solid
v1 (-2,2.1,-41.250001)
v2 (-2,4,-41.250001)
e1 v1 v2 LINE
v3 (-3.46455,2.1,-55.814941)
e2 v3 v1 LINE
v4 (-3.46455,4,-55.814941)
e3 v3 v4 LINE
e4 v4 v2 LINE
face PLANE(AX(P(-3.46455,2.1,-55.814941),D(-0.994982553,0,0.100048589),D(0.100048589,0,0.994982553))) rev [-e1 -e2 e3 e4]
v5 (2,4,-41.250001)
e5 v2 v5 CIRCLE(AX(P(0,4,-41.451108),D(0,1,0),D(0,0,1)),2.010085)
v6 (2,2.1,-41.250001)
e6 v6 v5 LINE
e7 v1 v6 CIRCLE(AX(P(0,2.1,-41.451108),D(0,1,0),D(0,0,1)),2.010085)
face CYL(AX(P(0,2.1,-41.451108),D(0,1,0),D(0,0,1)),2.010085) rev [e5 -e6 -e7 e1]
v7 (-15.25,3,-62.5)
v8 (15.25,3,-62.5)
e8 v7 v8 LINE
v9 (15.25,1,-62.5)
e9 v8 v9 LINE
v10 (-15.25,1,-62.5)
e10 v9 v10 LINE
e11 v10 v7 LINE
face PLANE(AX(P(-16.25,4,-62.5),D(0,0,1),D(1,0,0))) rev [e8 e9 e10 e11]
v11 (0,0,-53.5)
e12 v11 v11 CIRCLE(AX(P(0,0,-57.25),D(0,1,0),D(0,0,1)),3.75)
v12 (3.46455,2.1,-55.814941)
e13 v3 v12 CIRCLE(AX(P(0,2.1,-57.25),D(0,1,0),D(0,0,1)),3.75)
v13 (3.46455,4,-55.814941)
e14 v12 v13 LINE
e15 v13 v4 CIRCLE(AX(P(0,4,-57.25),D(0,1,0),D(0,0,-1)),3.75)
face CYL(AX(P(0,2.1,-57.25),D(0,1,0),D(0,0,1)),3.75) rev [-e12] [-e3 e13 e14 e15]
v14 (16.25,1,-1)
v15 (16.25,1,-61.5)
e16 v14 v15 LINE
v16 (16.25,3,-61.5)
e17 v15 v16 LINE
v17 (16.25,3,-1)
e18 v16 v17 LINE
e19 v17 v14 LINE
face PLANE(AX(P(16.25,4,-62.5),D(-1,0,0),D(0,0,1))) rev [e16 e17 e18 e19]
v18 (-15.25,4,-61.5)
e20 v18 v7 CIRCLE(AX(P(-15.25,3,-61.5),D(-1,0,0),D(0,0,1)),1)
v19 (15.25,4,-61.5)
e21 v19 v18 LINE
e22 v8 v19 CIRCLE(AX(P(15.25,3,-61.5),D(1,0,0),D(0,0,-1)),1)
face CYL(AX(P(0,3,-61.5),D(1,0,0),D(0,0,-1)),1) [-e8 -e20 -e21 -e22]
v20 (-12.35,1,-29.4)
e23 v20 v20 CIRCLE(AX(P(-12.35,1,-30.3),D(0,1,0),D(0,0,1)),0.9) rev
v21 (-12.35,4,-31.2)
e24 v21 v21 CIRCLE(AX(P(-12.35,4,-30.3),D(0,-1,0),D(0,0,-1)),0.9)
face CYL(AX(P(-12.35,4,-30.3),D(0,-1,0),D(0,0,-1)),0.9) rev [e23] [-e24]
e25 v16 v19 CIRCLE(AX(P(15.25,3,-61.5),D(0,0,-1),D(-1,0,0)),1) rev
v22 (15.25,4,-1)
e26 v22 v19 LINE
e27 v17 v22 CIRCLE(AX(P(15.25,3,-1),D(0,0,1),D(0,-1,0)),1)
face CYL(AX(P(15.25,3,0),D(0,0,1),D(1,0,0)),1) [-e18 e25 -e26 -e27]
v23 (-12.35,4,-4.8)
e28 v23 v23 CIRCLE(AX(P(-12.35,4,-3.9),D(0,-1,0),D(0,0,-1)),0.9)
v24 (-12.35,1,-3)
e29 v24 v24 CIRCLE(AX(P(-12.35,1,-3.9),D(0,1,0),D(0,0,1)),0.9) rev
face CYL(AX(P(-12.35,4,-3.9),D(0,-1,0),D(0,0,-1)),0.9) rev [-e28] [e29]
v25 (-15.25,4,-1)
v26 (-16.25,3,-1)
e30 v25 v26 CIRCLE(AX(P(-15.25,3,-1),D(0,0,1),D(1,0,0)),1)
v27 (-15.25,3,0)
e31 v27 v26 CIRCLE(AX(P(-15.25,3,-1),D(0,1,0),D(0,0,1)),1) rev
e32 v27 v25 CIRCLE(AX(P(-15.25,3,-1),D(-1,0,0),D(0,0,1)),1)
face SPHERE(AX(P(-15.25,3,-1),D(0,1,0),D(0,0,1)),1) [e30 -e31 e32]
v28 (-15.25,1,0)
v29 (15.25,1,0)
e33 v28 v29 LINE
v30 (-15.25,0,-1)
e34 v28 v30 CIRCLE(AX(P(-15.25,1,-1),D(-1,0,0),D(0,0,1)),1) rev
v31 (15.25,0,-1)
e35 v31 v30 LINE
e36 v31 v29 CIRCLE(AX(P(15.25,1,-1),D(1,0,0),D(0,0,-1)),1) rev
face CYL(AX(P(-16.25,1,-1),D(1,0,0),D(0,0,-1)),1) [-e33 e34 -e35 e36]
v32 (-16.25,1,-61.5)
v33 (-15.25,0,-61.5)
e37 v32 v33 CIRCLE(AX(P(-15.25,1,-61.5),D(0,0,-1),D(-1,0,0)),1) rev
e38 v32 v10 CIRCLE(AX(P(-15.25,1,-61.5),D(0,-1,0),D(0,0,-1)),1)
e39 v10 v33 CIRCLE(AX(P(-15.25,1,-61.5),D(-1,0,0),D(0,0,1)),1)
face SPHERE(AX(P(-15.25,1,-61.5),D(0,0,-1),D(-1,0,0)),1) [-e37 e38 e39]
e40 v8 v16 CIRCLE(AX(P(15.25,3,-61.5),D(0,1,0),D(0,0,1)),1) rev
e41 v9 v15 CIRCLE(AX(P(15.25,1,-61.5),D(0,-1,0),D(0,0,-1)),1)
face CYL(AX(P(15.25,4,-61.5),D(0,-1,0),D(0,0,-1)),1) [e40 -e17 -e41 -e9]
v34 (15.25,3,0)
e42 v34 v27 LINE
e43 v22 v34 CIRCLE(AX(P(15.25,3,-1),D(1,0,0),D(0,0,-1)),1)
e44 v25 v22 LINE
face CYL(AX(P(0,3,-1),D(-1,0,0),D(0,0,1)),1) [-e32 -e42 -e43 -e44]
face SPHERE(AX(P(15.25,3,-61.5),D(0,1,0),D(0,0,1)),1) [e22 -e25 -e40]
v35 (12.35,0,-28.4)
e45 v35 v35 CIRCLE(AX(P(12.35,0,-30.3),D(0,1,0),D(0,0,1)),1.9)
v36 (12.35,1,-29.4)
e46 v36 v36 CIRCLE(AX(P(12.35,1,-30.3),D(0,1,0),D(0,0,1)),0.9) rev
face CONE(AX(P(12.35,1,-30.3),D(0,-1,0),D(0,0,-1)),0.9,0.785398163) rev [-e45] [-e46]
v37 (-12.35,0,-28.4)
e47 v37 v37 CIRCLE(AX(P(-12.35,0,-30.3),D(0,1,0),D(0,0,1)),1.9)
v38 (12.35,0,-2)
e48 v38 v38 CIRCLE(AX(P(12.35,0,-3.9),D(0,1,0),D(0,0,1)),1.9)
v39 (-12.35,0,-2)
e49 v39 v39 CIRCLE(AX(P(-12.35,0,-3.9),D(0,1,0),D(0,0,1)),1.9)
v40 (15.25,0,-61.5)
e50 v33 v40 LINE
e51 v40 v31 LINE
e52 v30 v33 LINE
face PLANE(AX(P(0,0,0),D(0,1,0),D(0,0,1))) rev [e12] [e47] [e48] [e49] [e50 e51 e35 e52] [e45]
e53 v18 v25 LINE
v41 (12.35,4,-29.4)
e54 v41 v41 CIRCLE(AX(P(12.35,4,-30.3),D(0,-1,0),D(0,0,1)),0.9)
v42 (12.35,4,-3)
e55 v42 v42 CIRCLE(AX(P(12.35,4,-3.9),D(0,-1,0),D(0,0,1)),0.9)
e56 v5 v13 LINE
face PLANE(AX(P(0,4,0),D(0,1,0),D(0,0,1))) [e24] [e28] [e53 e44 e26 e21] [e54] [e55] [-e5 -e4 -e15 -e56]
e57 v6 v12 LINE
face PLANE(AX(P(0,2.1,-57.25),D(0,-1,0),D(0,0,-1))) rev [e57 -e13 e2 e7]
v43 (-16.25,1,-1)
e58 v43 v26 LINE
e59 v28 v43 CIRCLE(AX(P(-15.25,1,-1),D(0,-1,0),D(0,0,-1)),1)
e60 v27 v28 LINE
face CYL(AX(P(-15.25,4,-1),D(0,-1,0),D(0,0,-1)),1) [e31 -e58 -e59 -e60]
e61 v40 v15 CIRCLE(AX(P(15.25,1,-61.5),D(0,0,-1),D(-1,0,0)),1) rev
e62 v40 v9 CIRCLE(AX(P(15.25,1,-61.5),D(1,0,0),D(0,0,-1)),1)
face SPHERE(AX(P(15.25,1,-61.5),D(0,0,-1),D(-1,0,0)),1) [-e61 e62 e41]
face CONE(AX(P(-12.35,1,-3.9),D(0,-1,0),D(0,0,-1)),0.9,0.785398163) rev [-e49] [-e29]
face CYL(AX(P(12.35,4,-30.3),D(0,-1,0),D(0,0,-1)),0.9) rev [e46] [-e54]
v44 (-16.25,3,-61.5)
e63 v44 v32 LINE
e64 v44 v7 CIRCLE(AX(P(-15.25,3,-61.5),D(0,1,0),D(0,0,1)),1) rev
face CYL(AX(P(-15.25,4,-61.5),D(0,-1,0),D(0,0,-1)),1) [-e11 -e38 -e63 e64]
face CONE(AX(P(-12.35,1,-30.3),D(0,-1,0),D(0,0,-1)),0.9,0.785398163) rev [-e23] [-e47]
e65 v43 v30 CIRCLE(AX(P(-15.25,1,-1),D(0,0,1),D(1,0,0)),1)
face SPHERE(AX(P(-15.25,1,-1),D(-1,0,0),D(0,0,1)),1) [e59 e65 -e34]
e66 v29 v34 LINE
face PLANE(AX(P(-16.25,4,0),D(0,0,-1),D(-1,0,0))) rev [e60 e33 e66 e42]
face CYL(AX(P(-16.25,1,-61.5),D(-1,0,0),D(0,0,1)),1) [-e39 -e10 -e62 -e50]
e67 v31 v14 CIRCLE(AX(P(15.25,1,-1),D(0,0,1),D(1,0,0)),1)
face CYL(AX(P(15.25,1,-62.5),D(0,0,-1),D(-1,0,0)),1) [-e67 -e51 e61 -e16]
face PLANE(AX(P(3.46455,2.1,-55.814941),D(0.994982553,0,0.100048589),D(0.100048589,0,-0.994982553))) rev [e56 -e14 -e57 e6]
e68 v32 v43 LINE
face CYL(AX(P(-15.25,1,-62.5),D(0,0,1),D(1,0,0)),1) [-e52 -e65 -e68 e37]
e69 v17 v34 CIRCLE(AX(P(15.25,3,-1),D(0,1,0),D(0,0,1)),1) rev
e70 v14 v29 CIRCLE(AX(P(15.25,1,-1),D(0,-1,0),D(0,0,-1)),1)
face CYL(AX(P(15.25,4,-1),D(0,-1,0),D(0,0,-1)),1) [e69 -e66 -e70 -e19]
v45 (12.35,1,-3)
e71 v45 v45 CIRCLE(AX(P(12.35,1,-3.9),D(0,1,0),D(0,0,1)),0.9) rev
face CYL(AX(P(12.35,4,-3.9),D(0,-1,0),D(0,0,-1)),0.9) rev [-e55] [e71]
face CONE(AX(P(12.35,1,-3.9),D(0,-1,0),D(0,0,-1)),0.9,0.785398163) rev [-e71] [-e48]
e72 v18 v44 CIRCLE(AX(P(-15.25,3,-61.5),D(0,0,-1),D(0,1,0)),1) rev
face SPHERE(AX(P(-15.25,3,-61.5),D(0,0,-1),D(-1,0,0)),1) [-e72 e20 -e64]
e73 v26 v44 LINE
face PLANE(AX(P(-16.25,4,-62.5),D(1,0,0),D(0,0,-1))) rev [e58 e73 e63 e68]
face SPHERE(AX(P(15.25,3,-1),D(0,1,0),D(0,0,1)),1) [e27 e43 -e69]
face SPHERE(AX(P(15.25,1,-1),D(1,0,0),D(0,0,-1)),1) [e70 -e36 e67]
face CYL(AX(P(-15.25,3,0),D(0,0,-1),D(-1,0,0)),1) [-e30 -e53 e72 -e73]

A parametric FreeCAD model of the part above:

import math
import FreeCAD as App
import Part
import Sketcher


def edges_at(feature, points):
    """Names of the edges that pass closest to the given points."""
    edges = feature.Shape.Edges
    near = lambda p: min(range(len(edges)), key=lambda i: edges[i].distToShape(Part.Vertex(*p))[0])
    return sorted({f"Edge{near(p) + 1}" for p in points})

doc = App.newDocument("Part")
body = doc.addObject("PartDesign::Body", "Body")

# Sketch on XZ plane
sketch1 = body.newObject("Sketcher::SketchObject", "Sketch")
sketch1.AttachmentSupport = (doc.getObject("XZ_Plane"), [""])
sketch1.MapMode = "FlatFace"
sketch1.addGeometry([
    Part.LineSegment(App.Vector(-16.25, -62.5, 0), App.Vector(-16.25, 0, 0)),
    Part.LineSegment(App.Vector(-16.25, 0, 0), App.Vector(16.25, 0, 0)),
    Part.LineSegment(App.Vector(16.25, 0, 0), App.Vector(16.25, -62.5, 0)),
    Part.LineSegment(App.Vector(16.25, -62.5, 0), App.Vector(-16.25, -62.5, 0)),
], False)
sketch1.addConstraint([
    Sketcher.Constraint("Coincident", 0, 2, 1, 1),
    Sketcher.Constraint("Coincident", 1, 2, 2, 1),
    Sketcher.Constraint("Coincident", 2, 2, 3, 1),
    Sketcher.Constraint("Coincident", 3, 2, 0, 1),
    Sketcher.Constraint("Vertical", 0),
    Sketcher.Constraint("Horizontal", 1),
    Sketcher.Constraint("Vertical", 2),
    Sketcher.Constraint("Horizontal", 3),
    Sketcher.Constraint("Symmetric", 0, 2, 1, 2, -1, 1),
    Sketcher.Constraint("DistanceX", 1, 1, 1, 2, 32.5),
    Sketcher.Constraint("DistanceY", 0, 1, 0, 2, 62.5),
])
pad1 = body.newObject("PartDesign::Pad", "Pad")
pad1.Profile = sketch1
pad1.Length = 4
pad1.Reversed = True

# Sketch on XZ plane
sketch2 = body.newObject("Sketcher::SketchObject", "Sketch001")
sketch2.AttachmentSupport = (doc.getObject("XZ_Plane"), [""])
sketch2.MapMode = "FlatFace"
sketch2.AttachmentOffset = App.Placement(App.Vector(0, 0, -4), App.Rotation())
sketch2.addGeometry([
    Part.LineSegment(App.Vector(-3.46455, -55.814941, 0), App.Vector(-2, -41.250001, 0)),
    Part.ArcOfCircle(Part.Circle(App.Vector(0, -41.451108, 0), App.Vector(0, 0, 1), 2.010085), math.radians(5.741968), math.radians(174.258032)),
    Part.LineSegment(App.Vector(2, -41.250001, 0), App.Vector(3.46455, -55.814941, 0)),
    Part.ArcOfCircle(Part.Circle(App.Vector(0, -57.25, 0), App.Vector(0, 0, 1), 3.75), math.radians(157.50007), math.radians(382.49993)),
], False)
sketch2.addConstraint([
    Sketcher.Constraint("Coincident", 0, 2, 1, 2),
    Sketcher.Constraint("Coincident", 1, 1, 2, 1),
    Sketcher.Constraint("Coincident", 2, 2, 3, 2),
    Sketcher.Constraint("Coincident", 3, 1, 0, 1),
    Sketcher.Constraint("PointOnObject", 1, 3, -2),
    Sketcher.Constraint("PointOnObject", 3, 3, -2),
    Sketcher.Constraint("Radius", 3, 3.75),
    Sketcher.Constraint("DistanceX", 0, 2, -1, 1, 2.0),
    Sketcher.Constraint("DistanceX", -1, 1, 1, 1, 2.0),
    Sketcher.Constraint("DistanceY", 3, 3, 0, 2, 15.999999),
    Sketcher.Constraint("DistanceY", 3, 3, -1, 1, 57.25),
    Sketcher.Constraint("Radius", 1, 2.010085),
    Sketcher.Constraint("DistanceX", 3, 1, 2, 2, 6.9291),
    Sketcher.Constraint("DistanceX", -1, 1, 2, 2, 3.46455),
])
pocket1 = body.newObject("PartDesign::Pocket", "Pocket")
pocket1.Profile = sketch2
pocket1.Length = 1.9
pocket1.Reversed = True

# Sketch on XZ plane
sketch3 = body.newObject("Sketcher::SketchObject", "Sketch002")
sketch3.AttachmentSupport = (doc.getObject("XZ_Plane"), [""])
sketch3.MapMode = "FlatFace"
sketch3.AttachmentOffset = App.Placement(App.Vector(0, 0, -2.1), App.Rotation())
sketch3.addGeometry(Part.Circle(App.Vector(0, -57.25, 0), App.Vector(0, 0, 1), 3.75), False)
sketch3.addConstraint([
    Sketcher.Constraint("PointOnObject", 0, 3, -2),
    Sketcher.Constraint("Diameter", 0, 7.5),
    Sketcher.Constraint("DistanceY", 0, 3, -1, 1, 57.25),
])
pocket2 = body.newObject("PartDesign::Pocket", "Pocket001")
pocket2.Profile = sketch3
pocket2.Type = "ThroughAll"
pocket2.Reversed = True

# Sketch on XZ plane
sketch4 = body.newObject("Sketcher::SketchObject", "Sketch003")
sketch4.AttachmentSupport = (doc.getObject("XZ_Plane"), [""])
sketch4.MapMode = "FlatFace"
sketch4.addGeometry([
    Part.Circle(App.Vector(-12.35, -3.9, 0), App.Vector(0, 0, 1), 0.9),
    Part.Circle(App.Vector(-12.35, -30.3, 0), App.Vector(0, 0, 1), 0.9),
    Part.Circle(App.Vector(12.35, -30.3, 0), App.Vector(0, 0, 1), 0.9),
    Part.Circle(App.Vector(12.35, -3.9, 0), App.Vector(0, 0, 1), 0.9),
], False)
sketch4.addConstraint([
    Sketcher.Constraint("Equal", 0, 1),
    Sketcher.Constraint("Equal", 1, 2),
    Sketcher.Constraint("Equal", 2, 3),
    Sketcher.Constraint("Symmetric", 1, 3, 2, 3, -2),
    Sketcher.Constraint("Symmetric", 0, 3, 3, 3, -2),
    Sketcher.Constraint("Vertical", 0, 3, 1, 3),
    Sketcher.Constraint("Diameter", 0, 1.8),
    Sketcher.Constraint("DistanceY", 0, 3, -1, 1, 3.9),
    Sketcher.Constraint("DistanceY", 1, 3, -1, 1, 30.3),
    Sketcher.Constraint("DistanceX", 1, 3, 2, 3, 24.7),
])
pocket3 = body.newObject("PartDesign::Pocket", "Pocket002")
pocket3.Profile = sketch4
pocket3.Type = "ThroughAll"
doc.recompute()

chamfer = body.newObject("PartDesign::Chamfer", "Chamfer")
chamfer.Base = (pocket3, edges_at(pocket3, [
    (12.35, 0, -4.8),
    (12.35, 0, -31.2),
    (-12.35, 0, -29.4),
    (-12.35, 0, -3),
]))
chamfer.Size = 1
doc.recompute()

fillet = body.newObject("PartDesign::Fillet", "Fillet")
fillet.Base = (chamfer, edges_at(chamfer, [
    (16.25, 4, -31.25),
    (0, 4, -62.5),
    (-16.25, 4, -31.25),
    (0, 0, -62.5),
    (16.25, 0, -31.25),
    (0, 0, 0),
    (-16.25, 0, -31.25),
    (-16.25, 2, -62.5),
    (16.25, 2, -62.5),
    (16.25, 2, 0),
    (-16.25, 2, 0),
    (0, 4, 0),
]))
fillet.Radius = 1

doc.recompute()
